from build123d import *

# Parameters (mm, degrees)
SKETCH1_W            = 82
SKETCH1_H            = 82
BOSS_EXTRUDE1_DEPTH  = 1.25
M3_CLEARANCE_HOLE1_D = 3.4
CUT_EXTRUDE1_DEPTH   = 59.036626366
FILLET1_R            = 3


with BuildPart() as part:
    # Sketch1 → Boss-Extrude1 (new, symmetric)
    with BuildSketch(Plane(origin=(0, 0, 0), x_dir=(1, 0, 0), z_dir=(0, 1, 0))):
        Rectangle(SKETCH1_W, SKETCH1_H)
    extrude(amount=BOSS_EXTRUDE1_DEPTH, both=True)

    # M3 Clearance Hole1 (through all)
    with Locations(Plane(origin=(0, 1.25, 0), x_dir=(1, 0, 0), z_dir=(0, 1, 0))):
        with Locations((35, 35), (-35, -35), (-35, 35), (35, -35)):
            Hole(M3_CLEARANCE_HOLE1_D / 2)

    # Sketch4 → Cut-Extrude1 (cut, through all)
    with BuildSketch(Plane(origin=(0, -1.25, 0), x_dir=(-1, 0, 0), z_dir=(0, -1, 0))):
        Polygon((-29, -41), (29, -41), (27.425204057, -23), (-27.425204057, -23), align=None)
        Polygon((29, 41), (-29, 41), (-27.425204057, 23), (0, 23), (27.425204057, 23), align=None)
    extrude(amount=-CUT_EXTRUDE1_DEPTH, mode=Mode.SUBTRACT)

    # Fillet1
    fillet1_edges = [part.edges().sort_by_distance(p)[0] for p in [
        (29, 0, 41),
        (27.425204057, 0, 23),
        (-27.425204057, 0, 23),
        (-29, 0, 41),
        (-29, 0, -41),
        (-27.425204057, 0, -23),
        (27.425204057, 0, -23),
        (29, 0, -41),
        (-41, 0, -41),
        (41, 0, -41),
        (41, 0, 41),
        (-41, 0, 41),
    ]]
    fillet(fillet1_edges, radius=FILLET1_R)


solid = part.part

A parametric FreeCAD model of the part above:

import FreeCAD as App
import Part
import Sketcher
Q = App.Units.Quantity


def edges_at(feature, points):
    """Names of the edges that pass closest to the given points."""
    edges = feature.Shape.Edges
    near = lambda p: min(range(len(edges)), key=lambda i: edges[i].distToShape(Part.Vertex(*p))[0])
    return sorted({f"Edge{near(p) + 1}" for p in points})

doc = App.newDocument("Part")
params = doc.addObject("Spreadsheet::Sheet", "Params")
for row, (alias, value) in enumerate([
    ("sketch1_width", "82 mm"),
    ("pad1_length", "2.5 mm"),
    ("sketch2_diameter", "3.4 mm"),
    ("hole_diameter", "3.4 mm"),
    ("sketch3_width", "58 mm"),
    ("fillet_radius", "3 mm"),
], start=1):
    params.set(f"A{row}", alias)
    params.set(f"B{row}", "=" + value)
    params.setAlias(f"B{row}", alias)

body = doc.addObject("PartDesign::Body", "Body")

# Sketch on XZ plane
sketch1 = body.newObject("Sketcher::SketchObject", "Sketch")
sketch1.AttachmentSupport = (doc.getObject("XZ_Plane"), [""])
sketch1.MapMode = "FlatFace"
sketch1.addGeometry(Part.LineSegment(App.Vector(-41, -41, 0), App.Vector(-41, 41, 0)), False)
sketch1.addGeometry(Part.LineSegment(App.Vector(-41, 41, 0), App.Vector(41, 41, 0)), False)
sketch1.addGeometry(Part.LineSegment(App.Vector(41, 41, 0), App.Vector(41, -41, 0)), False)
sketch1.addGeometry(Part.LineSegment(App.Vector(41, -41, 0), App.Vector(-41, -41, 0)), False)
sketch1.addConstraint(Sketcher.Constraint("Coincident", 0, 2, 1, 1))
sketch1.addConstraint(Sketcher.Constraint("Coincident", 1, 2, 2, 1))
sketch1.addConstraint(Sketcher.Constraint("Coincident", 2, 2, 3, 1))
sketch1.addConstraint(Sketcher.Constraint("Coincident", 3, 2, 0, 1))
sketch1.addConstraint(Sketcher.Constraint("Vertical", 0))
sketch1.addConstraint(Sketcher.Constraint("Horizontal", 1))
sketch1.addConstraint(Sketcher.Constraint("Vertical", 2))
sketch1.addConstraint(Sketcher.Constraint("Horizontal", 3))
sketch1.addConstraint(Sketcher.Constraint("Symmetric", 0, 2, 2, 2, -1, 1))
sketch1.addConstraint(Sketcher.Constraint("Equal", 3, 0))
sketch1.addConstraint(Sketcher.Constraint("DistanceX", 1, 1, 1, 2, Q("82 mm")))
sketch1.setExpression("Constraints[10]", "Params.sketch1_width")
pad1 = body.newObject("PartDesign::Pad", "Pad")
pad1.Profile = sketch1
pad1.setExpression("Length", "Params.pad1_length")
pad1.Midplane = True

# Sketch on XZ plane
sketch2 = body.newObject("Sketcher::SketchObject", "Sketch001")
sketch2.AttachmentSupport = (doc.getObject("XZ_Plane"), [""])
sketch2.MapMode = "FlatFace"
sketch2.AttachmentOffset = App.Placement(App.Vector(0, 0, -1.25), App.Rotation())
sketch2.addGeometry(Part.Circle(App.Vector(35, -35, 0), App.Vector(0, 0, 1), 1.7), False)
sketch2.addGeometry(Part.Circle(App.Vector(-35, 35, 0), App.Vector(0, 0, 1), 1.7), False)
sketch2.addGeometry(Part.Circle(App.Vector(-35, -35, 0), App.Vector(0, 0, 1), 1.7), False)
sketch2.addGeometry(Part.Circle(App.Vector(35, 35, 0), App.Vector(0, 0, 1), 1.7), False)
sketch2.addConstraint(Sketcher.Constraint("Equal", 0, 1))
sketch2.addConstraint(Sketcher.Constraint("Equal", 1, 2))
sketch2.addConstraint(Sketcher.Constraint("Equal", 2, 3))
sketch2.addConstraint(Sketcher.Constraint("Symmetric", 0, 3, 1, 3, -1, 1))
sketch2.addConstraint(Sketcher.Constraint("Symmetric", 2, 3, 3, 3, -1, 1))
sketch2.addConstraint(Sketcher.Constraint("Symmetric", 0, 3, 2, 3, -2))
sketch2.addConstraint(Sketcher.Constraint("Diameter", 0, Q("3.4 mm")))
sketch2.addConstraint(Sketcher.Constraint("DistanceX", -1, 1, 0, 3, Q("35 mm")))
sketch2.addConstraint(Sketcher.Constraint("DistanceY", 0, 3, -1, 1, Q("35 mm")))
sketch2.setExpression("Constraints[6]", "Params.sketch2_diameter")
doc.recompute()
hole = body.newObject("PartDesign::Hole", "Hole")
hole.Profile = sketch2
hole.ThreadType = "None"
hole.setExpression("Diameter", "Params.hole_diameter")
hole.DepthType = "ThroughAll"
hole.Reversed = True

# Sketch on XZ plane
sketch3 = body.newObject("Sketcher::SketchObject", "Sketch002")
sketch3.AttachmentSupport = (doc.getObject("XZ_Plane"), [""])
sketch3.MapMode = "FlatFace"
sketch3.AttachmentOffset = App.Placement(App.Vector(0, 0, 1.25), App.Rotation())
sketch3.addGeometry(Part.LineSegment(App.Vector(29, 41, 0), App.Vector(-29, 41, 0)), False)
sketch3.addGeometry(Part.LineSegment(App.Vector(-29, 41, 0), App.Vector(-27.425204, 23, 0)), False)
sketch3.addGeometry(Part.LineSegment(App.Vector(-27.425204, 23, 0), App.Vector(27.425204, 23, 0)), False)
sketch3.addGeometry(Part.LineSegment(App.Vector(27.425204, 23, 0), App.Vector(29, 41, 0)), False)
sketch3.addGeometry(Part.LineSegment(App.Vector(-29, -41, 0), App.Vector(29, -41, 0)), False)
sketch3.addGeometry(Part.LineSegment(App.Vector(29, -41, 0), App.Vector(27.425204, -23, 0)), False)
sketch3.addGeometry(Part.LineSegment(App.Vector(27.425204, -23, 0), App.Vector(-27.425204, -23, 0)), False)
sketch3.addGeometry(Part.LineSegment(App.Vector(-27.425204, -23, 0), App.Vector(-29, -41, 0)), False)
sketch3.addConstraint(Sketcher.Constraint("Coincident", 0, 2, 1, 1))
sketch3.addConstraint(Sketcher.Constraint("Coincident", 1, 2, 2, 1))
sketch3.addConstraint(Sketcher.Constraint("Coincident", 2, 2, 3, 1))
sketch3.addConstraint(Sketcher.Constraint("Coincident", 3, 2, 0, 1))
sketch3.addConstraint(Sketcher.Constraint("Coincident", 4, 2, 5, 1))
sketch3.addConstraint(Sketcher.Constraint("Coincident", 5, 2, 6, 1))
sketch3.addConstraint(Sketcher.Constraint("Coincident", 6, 2, 7, 1))
sketch3.addConstraint(Sketcher.Constraint("Coincident", 7, 2, 4, 1))
sketch3.addConstraint(Sketcher.Constraint("Horizontal", 0))
sketch3.addConstraint(Sketcher.Constraint("Horizontal", 2))
sketch3.addConstraint(Sketcher.Constraint("Horizontal", 4))
sketch3.addConstraint(Sketcher.Constraint("Horizontal", 6))
sketch3.addConstraint(Sketcher.Constraint("Symmetric", 0, 2, 4, 2, -1, 1))
sketch3.addConstraint(Sketcher.Constraint("Symmetric", 1, 2, 5, 2, -1, 1))
sketch3.addConstraint(Sketcher.Constraint("Parallel", 3, 7))
sketch3.addConstraint(Sketcher.Constraint("Vertical", 3, 2, 4, 2))
sketch3.addConstraint(Sketcher.Constraint("Vertical", 2, 2, 5, 2))
sketch3.addConstraint(Sketcher.Constraint("Vertical", 1, 2, 6, 2))
sketch3.addConstraint(Sketcher.Constraint("DistanceX", 0, 2, 0, 1, Q("58 mm")))
sketch3.addConstraint(Sketcher.Constraint("Angle", 1, Q("-85 deg")))
sketch3.addConstraint(Sketcher.Constraint("DistanceY", -1, 1, 0, 2, Q("41 mm")))
sketch3.addConstraint(Sketcher.Constraint("DistanceY", -1, 1, 1, 2, Q("23 mm")))
sketch3.setExpression("Constraints[18]", "Params.sketch3_width")
pocket1 = body.newObject("PartDesign::Pocket", "Pocket")
pocket1.Profile = sketch3
pocket1.Type = "ThroughAll"
doc.recompute()

fillet = body.newObject("PartDesign::Fillet", "Fillet")
fillet.Base = (pocket1, edges_at(pocket1, [
    (29, 0, 41),
    (27.425, 0, 23),
    (-27.425, 0, 23),
    (-29, 0, 41),
    (-29, 0, -41),
    (-27.425, 0, -23),
    (27.425, 0, -23),
    (29, 0, -41),
    (-41, 0, -41),
    (41, 0, -41),
    (41, 0, 41),
    (-41, 0, 41),
]))
fillet.setExpression("Radius", "Params.fillet_radius")

doc.recompute()
